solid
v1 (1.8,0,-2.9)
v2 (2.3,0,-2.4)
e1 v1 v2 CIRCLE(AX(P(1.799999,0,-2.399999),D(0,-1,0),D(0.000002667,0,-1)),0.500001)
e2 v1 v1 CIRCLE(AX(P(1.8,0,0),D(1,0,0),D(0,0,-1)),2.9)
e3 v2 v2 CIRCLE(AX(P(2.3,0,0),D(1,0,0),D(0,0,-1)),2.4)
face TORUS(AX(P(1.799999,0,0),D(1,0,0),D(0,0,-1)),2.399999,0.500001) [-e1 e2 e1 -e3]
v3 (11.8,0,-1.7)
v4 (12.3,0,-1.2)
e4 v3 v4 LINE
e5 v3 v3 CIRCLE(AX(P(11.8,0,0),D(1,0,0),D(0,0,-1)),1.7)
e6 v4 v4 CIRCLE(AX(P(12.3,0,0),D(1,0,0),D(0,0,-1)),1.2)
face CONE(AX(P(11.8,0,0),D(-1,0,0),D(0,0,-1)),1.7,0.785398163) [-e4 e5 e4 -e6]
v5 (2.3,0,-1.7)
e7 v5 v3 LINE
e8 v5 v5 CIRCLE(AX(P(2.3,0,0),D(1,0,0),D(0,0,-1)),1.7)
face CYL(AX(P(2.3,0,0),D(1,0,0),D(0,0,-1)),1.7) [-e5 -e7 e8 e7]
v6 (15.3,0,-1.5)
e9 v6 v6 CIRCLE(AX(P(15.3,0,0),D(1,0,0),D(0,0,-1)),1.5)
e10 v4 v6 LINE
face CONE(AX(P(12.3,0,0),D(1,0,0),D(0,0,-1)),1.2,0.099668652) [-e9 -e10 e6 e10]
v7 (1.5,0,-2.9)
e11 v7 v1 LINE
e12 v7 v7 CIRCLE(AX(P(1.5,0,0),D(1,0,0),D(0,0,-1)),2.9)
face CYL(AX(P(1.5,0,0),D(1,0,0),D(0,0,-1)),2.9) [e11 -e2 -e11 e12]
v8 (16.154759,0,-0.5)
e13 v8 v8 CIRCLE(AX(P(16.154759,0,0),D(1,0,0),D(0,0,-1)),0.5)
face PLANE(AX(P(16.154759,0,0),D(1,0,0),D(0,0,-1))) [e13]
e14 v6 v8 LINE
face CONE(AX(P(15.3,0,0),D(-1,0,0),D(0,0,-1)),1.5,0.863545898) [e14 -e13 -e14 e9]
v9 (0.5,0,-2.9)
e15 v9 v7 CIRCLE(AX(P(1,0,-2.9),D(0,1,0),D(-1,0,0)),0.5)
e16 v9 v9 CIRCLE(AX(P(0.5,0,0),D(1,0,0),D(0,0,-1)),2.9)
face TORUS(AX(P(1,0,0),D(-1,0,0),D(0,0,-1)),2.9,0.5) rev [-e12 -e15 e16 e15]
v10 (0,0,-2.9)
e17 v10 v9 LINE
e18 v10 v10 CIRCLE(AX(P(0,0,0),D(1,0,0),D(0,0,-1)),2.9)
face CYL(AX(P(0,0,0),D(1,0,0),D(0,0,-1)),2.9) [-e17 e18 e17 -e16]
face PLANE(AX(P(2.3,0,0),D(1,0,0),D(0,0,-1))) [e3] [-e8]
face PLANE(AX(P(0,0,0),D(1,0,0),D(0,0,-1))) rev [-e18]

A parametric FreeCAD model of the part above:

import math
import FreeCAD as App
import Part
import Sketcher
from FreeCAD import Vector
Q = App.Units.Quantity

doc = App.newDocument("Part")
body = doc.addObject("PartDesign::Body", "Body")

# Sketch on XZ plane
sketch1 = doc.addObject("Sketcher::SketchObject", "Sketch")
body.addObject(sketch1)
sketch1.AttachmentSupport = (doc.XZ_Plane, [""])
sketch1.MapMode = "FlatFace"
sketch1.addGeometry(Part.LineSegment(Vector(16.154759, 0, 0), Vector(0, 0, 0)), False)
sketch1.addGeometry(Part.LineSegment(Vector(0, 0, 0), Vector(0, -2.9, 0)), False)
sketch1.addGeometry(Part.LineSegment(Vector(0, -2.9, 0), Vector(0.5, -2.9, 0)), False)
sketch1.addGeometry(Part.ArcOfCircle(Part.Circle(Vector(1, -2.9, 0), Vector(0, 0, 1), 0.5), math.radians(0), math.radians(180)), False)
sketch1.addGeometry(Part.LineSegment(Vector(1.5, -2.9, 0), Vector(1.8, -2.9, 0)), False)
sketch1.addGeometry(Part.ArcOfCircle(Part.Circle(Vector(1.799999, -2.399999, 0), Vector(0, 0, 1), 0.500001), math.radians(-89.999847), math.radians(-0.000153)), False)
sketch1.addGeometry(Part.LineSegment(Vector(2.3, -2.4, 0), Vector(2.3, -1.7, 0)), False)
sketch1.addGeometry(Part.LineSegment(Vector(2.3, -1.7, 0), Vector(11.8, -1.7, 0)), False)
sketch1.addGeometry(Part.LineSegment(Vector(11.8, -1.7, 0), Vector(12.3, -1.2, 0)), False)
sketch1.addGeometry(Part.LineSegment(Vector(12.3, -1.2, 0), Vector(15.3, -1.5, 0)), False)
sketch1.addGeometry(Part.LineSegment(Vector(15.3, -1.5, 0), Vector(16.154759, -0.5, 0)), False)
sketch1.addGeometry(Part.LineSegment(Vector(16.154759, -0.5, 0), Vector(16.154759, 0, 0)), False)
sketch1.addConstraint(Sketcher.Constraint("Coincident", 0, 2, 1, 1))
sketch1.addConstraint(Sketcher.Constraint("Coincident", 1, 2, 2, 1))
sketch1.addConstraint(Sketcher.Constraint("Coincident", 2, 2, 3, 2))
sketch1.addConstraint(Sketcher.Constraint("Coincident", 3, 1, 4, 1))
sketch1.addConstraint(Sketcher.Constraint("Coincident", 4, 2, 5, 1))
sketch1.addConstraint(Sketcher.Constraint("Coincident", 5, 2, 6, 1))
sketch1.addConstraint(Sketcher.Constraint("Coincident", 6, 2, 7, 1))
sketch1.addConstraint(Sketcher.Constraint("Coincident", 7, 2, 8, 1))
sketch1.addConstraint(Sketcher.Constraint("Coincident", 8, 2, 9, 1))
sketch1.addConstraint(Sketcher.Constraint("Coincident", 9, 2, 10, 1))
sketch1.addConstraint(Sketcher.Constraint("Coincident", 10, 2, 11, 1))
sketch1.addConstraint(Sketcher.Constraint("Coincident", 11, 2, 0, 1))
sketch1.addConstraint(Sketcher.Constraint("Horizontal", 0))
sketch1.addConstraint(Sketcher.Constraint("Vertical", 1))
sketch1.addConstraint(Sketcher.Constraint("Horizontal", 2))
sketch1.addConstraint(Sketcher.Constraint("Horizontal", 4))
sketch1.addConstraint(Sketcher.Constraint("Vertical", 6))
sketch1.addConstraint(Sketcher.Constraint("Horizontal", 7))
sketch1.addConstraint(Sketcher.Constraint("Vertical", 11))
sketch1.addConstraint(Sketcher.Constraint("Coincident", 0, 2, -1, 1))
sketch1.addConstraint(Sketcher.Constraint("Equal", 3, 5))
sketch1.addConstraint(Sketcher.Constraint("Horizontal", 3, 3, 1, 2))
sketch1.addConstraint(Sketcher.Constraint("Horizontal", 2, 2, 3, 1))
sketch1.addConstraint(Sketcher.Constraint("Vertical", 5, 3, 4, 2))
sketch1.addConstraint(Sketcher.Constraint("Equal", 2, 11))
sketch1.addConstraint(Sketcher.Constraint("Radius", 3, Q("0.5 mm")))
sketch1.addConstraint(Sketcher.Constraint("Angle", 8, Q("45 deg")))
sketch1.addConstraint(Sketcher.Constraint("DistanceX", 2, 1, 2, 2, Q("0.5 mm")))
sketch1.addConstraint(Sketcher.Constraint("DistanceX", 4, 1, 4, 2, Q("0.3 mm")))
sketch1.addConstraint(Sketcher.Constraint("DistanceX", 7, 1, 7, 2, Q("9.5 mm")))
sketch1.addConstraint(Sketcher.Constraint("DistanceY", 1, 2, 1, 1, Q("2.9 mm")))
sketch1.addConstraint(Sketcher.Constraint("DistanceY", 6, 1, 6, 2, Q("0.7 mm")))
sketch1.addConstraint(Sketcher.Constraint("DistanceX", 6, 2, 8, 2, Q("10 mm")))
sketch1.addConstraint(Sketcher.Constraint("DistanceX", 8, 2, 9, 2, Q("3 mm")))
sketch1.addConstraint(Sketcher.Constraint("DistanceY", 9, 2, 10, 2, Q("1 mm")))
sketch1.addConstraint(Sketcher.Constraint("DistanceY", 5, 2, -1, 1, Q("2.4 mm")))
sketch1.addConstraint(Sketcher.Constraint("DistanceX", 0, 2, 0, 1, Q("16.154759 mm")))
revolution = doc.addObject("PartDesign::Revolution", "Revolution")
body.addObject(revolution)
revolution.Profile = sketch1
revolution.ReferenceAxis = (sketch1, ["H_Axis"])
revolution.Angle = 360

doc.recompute()
